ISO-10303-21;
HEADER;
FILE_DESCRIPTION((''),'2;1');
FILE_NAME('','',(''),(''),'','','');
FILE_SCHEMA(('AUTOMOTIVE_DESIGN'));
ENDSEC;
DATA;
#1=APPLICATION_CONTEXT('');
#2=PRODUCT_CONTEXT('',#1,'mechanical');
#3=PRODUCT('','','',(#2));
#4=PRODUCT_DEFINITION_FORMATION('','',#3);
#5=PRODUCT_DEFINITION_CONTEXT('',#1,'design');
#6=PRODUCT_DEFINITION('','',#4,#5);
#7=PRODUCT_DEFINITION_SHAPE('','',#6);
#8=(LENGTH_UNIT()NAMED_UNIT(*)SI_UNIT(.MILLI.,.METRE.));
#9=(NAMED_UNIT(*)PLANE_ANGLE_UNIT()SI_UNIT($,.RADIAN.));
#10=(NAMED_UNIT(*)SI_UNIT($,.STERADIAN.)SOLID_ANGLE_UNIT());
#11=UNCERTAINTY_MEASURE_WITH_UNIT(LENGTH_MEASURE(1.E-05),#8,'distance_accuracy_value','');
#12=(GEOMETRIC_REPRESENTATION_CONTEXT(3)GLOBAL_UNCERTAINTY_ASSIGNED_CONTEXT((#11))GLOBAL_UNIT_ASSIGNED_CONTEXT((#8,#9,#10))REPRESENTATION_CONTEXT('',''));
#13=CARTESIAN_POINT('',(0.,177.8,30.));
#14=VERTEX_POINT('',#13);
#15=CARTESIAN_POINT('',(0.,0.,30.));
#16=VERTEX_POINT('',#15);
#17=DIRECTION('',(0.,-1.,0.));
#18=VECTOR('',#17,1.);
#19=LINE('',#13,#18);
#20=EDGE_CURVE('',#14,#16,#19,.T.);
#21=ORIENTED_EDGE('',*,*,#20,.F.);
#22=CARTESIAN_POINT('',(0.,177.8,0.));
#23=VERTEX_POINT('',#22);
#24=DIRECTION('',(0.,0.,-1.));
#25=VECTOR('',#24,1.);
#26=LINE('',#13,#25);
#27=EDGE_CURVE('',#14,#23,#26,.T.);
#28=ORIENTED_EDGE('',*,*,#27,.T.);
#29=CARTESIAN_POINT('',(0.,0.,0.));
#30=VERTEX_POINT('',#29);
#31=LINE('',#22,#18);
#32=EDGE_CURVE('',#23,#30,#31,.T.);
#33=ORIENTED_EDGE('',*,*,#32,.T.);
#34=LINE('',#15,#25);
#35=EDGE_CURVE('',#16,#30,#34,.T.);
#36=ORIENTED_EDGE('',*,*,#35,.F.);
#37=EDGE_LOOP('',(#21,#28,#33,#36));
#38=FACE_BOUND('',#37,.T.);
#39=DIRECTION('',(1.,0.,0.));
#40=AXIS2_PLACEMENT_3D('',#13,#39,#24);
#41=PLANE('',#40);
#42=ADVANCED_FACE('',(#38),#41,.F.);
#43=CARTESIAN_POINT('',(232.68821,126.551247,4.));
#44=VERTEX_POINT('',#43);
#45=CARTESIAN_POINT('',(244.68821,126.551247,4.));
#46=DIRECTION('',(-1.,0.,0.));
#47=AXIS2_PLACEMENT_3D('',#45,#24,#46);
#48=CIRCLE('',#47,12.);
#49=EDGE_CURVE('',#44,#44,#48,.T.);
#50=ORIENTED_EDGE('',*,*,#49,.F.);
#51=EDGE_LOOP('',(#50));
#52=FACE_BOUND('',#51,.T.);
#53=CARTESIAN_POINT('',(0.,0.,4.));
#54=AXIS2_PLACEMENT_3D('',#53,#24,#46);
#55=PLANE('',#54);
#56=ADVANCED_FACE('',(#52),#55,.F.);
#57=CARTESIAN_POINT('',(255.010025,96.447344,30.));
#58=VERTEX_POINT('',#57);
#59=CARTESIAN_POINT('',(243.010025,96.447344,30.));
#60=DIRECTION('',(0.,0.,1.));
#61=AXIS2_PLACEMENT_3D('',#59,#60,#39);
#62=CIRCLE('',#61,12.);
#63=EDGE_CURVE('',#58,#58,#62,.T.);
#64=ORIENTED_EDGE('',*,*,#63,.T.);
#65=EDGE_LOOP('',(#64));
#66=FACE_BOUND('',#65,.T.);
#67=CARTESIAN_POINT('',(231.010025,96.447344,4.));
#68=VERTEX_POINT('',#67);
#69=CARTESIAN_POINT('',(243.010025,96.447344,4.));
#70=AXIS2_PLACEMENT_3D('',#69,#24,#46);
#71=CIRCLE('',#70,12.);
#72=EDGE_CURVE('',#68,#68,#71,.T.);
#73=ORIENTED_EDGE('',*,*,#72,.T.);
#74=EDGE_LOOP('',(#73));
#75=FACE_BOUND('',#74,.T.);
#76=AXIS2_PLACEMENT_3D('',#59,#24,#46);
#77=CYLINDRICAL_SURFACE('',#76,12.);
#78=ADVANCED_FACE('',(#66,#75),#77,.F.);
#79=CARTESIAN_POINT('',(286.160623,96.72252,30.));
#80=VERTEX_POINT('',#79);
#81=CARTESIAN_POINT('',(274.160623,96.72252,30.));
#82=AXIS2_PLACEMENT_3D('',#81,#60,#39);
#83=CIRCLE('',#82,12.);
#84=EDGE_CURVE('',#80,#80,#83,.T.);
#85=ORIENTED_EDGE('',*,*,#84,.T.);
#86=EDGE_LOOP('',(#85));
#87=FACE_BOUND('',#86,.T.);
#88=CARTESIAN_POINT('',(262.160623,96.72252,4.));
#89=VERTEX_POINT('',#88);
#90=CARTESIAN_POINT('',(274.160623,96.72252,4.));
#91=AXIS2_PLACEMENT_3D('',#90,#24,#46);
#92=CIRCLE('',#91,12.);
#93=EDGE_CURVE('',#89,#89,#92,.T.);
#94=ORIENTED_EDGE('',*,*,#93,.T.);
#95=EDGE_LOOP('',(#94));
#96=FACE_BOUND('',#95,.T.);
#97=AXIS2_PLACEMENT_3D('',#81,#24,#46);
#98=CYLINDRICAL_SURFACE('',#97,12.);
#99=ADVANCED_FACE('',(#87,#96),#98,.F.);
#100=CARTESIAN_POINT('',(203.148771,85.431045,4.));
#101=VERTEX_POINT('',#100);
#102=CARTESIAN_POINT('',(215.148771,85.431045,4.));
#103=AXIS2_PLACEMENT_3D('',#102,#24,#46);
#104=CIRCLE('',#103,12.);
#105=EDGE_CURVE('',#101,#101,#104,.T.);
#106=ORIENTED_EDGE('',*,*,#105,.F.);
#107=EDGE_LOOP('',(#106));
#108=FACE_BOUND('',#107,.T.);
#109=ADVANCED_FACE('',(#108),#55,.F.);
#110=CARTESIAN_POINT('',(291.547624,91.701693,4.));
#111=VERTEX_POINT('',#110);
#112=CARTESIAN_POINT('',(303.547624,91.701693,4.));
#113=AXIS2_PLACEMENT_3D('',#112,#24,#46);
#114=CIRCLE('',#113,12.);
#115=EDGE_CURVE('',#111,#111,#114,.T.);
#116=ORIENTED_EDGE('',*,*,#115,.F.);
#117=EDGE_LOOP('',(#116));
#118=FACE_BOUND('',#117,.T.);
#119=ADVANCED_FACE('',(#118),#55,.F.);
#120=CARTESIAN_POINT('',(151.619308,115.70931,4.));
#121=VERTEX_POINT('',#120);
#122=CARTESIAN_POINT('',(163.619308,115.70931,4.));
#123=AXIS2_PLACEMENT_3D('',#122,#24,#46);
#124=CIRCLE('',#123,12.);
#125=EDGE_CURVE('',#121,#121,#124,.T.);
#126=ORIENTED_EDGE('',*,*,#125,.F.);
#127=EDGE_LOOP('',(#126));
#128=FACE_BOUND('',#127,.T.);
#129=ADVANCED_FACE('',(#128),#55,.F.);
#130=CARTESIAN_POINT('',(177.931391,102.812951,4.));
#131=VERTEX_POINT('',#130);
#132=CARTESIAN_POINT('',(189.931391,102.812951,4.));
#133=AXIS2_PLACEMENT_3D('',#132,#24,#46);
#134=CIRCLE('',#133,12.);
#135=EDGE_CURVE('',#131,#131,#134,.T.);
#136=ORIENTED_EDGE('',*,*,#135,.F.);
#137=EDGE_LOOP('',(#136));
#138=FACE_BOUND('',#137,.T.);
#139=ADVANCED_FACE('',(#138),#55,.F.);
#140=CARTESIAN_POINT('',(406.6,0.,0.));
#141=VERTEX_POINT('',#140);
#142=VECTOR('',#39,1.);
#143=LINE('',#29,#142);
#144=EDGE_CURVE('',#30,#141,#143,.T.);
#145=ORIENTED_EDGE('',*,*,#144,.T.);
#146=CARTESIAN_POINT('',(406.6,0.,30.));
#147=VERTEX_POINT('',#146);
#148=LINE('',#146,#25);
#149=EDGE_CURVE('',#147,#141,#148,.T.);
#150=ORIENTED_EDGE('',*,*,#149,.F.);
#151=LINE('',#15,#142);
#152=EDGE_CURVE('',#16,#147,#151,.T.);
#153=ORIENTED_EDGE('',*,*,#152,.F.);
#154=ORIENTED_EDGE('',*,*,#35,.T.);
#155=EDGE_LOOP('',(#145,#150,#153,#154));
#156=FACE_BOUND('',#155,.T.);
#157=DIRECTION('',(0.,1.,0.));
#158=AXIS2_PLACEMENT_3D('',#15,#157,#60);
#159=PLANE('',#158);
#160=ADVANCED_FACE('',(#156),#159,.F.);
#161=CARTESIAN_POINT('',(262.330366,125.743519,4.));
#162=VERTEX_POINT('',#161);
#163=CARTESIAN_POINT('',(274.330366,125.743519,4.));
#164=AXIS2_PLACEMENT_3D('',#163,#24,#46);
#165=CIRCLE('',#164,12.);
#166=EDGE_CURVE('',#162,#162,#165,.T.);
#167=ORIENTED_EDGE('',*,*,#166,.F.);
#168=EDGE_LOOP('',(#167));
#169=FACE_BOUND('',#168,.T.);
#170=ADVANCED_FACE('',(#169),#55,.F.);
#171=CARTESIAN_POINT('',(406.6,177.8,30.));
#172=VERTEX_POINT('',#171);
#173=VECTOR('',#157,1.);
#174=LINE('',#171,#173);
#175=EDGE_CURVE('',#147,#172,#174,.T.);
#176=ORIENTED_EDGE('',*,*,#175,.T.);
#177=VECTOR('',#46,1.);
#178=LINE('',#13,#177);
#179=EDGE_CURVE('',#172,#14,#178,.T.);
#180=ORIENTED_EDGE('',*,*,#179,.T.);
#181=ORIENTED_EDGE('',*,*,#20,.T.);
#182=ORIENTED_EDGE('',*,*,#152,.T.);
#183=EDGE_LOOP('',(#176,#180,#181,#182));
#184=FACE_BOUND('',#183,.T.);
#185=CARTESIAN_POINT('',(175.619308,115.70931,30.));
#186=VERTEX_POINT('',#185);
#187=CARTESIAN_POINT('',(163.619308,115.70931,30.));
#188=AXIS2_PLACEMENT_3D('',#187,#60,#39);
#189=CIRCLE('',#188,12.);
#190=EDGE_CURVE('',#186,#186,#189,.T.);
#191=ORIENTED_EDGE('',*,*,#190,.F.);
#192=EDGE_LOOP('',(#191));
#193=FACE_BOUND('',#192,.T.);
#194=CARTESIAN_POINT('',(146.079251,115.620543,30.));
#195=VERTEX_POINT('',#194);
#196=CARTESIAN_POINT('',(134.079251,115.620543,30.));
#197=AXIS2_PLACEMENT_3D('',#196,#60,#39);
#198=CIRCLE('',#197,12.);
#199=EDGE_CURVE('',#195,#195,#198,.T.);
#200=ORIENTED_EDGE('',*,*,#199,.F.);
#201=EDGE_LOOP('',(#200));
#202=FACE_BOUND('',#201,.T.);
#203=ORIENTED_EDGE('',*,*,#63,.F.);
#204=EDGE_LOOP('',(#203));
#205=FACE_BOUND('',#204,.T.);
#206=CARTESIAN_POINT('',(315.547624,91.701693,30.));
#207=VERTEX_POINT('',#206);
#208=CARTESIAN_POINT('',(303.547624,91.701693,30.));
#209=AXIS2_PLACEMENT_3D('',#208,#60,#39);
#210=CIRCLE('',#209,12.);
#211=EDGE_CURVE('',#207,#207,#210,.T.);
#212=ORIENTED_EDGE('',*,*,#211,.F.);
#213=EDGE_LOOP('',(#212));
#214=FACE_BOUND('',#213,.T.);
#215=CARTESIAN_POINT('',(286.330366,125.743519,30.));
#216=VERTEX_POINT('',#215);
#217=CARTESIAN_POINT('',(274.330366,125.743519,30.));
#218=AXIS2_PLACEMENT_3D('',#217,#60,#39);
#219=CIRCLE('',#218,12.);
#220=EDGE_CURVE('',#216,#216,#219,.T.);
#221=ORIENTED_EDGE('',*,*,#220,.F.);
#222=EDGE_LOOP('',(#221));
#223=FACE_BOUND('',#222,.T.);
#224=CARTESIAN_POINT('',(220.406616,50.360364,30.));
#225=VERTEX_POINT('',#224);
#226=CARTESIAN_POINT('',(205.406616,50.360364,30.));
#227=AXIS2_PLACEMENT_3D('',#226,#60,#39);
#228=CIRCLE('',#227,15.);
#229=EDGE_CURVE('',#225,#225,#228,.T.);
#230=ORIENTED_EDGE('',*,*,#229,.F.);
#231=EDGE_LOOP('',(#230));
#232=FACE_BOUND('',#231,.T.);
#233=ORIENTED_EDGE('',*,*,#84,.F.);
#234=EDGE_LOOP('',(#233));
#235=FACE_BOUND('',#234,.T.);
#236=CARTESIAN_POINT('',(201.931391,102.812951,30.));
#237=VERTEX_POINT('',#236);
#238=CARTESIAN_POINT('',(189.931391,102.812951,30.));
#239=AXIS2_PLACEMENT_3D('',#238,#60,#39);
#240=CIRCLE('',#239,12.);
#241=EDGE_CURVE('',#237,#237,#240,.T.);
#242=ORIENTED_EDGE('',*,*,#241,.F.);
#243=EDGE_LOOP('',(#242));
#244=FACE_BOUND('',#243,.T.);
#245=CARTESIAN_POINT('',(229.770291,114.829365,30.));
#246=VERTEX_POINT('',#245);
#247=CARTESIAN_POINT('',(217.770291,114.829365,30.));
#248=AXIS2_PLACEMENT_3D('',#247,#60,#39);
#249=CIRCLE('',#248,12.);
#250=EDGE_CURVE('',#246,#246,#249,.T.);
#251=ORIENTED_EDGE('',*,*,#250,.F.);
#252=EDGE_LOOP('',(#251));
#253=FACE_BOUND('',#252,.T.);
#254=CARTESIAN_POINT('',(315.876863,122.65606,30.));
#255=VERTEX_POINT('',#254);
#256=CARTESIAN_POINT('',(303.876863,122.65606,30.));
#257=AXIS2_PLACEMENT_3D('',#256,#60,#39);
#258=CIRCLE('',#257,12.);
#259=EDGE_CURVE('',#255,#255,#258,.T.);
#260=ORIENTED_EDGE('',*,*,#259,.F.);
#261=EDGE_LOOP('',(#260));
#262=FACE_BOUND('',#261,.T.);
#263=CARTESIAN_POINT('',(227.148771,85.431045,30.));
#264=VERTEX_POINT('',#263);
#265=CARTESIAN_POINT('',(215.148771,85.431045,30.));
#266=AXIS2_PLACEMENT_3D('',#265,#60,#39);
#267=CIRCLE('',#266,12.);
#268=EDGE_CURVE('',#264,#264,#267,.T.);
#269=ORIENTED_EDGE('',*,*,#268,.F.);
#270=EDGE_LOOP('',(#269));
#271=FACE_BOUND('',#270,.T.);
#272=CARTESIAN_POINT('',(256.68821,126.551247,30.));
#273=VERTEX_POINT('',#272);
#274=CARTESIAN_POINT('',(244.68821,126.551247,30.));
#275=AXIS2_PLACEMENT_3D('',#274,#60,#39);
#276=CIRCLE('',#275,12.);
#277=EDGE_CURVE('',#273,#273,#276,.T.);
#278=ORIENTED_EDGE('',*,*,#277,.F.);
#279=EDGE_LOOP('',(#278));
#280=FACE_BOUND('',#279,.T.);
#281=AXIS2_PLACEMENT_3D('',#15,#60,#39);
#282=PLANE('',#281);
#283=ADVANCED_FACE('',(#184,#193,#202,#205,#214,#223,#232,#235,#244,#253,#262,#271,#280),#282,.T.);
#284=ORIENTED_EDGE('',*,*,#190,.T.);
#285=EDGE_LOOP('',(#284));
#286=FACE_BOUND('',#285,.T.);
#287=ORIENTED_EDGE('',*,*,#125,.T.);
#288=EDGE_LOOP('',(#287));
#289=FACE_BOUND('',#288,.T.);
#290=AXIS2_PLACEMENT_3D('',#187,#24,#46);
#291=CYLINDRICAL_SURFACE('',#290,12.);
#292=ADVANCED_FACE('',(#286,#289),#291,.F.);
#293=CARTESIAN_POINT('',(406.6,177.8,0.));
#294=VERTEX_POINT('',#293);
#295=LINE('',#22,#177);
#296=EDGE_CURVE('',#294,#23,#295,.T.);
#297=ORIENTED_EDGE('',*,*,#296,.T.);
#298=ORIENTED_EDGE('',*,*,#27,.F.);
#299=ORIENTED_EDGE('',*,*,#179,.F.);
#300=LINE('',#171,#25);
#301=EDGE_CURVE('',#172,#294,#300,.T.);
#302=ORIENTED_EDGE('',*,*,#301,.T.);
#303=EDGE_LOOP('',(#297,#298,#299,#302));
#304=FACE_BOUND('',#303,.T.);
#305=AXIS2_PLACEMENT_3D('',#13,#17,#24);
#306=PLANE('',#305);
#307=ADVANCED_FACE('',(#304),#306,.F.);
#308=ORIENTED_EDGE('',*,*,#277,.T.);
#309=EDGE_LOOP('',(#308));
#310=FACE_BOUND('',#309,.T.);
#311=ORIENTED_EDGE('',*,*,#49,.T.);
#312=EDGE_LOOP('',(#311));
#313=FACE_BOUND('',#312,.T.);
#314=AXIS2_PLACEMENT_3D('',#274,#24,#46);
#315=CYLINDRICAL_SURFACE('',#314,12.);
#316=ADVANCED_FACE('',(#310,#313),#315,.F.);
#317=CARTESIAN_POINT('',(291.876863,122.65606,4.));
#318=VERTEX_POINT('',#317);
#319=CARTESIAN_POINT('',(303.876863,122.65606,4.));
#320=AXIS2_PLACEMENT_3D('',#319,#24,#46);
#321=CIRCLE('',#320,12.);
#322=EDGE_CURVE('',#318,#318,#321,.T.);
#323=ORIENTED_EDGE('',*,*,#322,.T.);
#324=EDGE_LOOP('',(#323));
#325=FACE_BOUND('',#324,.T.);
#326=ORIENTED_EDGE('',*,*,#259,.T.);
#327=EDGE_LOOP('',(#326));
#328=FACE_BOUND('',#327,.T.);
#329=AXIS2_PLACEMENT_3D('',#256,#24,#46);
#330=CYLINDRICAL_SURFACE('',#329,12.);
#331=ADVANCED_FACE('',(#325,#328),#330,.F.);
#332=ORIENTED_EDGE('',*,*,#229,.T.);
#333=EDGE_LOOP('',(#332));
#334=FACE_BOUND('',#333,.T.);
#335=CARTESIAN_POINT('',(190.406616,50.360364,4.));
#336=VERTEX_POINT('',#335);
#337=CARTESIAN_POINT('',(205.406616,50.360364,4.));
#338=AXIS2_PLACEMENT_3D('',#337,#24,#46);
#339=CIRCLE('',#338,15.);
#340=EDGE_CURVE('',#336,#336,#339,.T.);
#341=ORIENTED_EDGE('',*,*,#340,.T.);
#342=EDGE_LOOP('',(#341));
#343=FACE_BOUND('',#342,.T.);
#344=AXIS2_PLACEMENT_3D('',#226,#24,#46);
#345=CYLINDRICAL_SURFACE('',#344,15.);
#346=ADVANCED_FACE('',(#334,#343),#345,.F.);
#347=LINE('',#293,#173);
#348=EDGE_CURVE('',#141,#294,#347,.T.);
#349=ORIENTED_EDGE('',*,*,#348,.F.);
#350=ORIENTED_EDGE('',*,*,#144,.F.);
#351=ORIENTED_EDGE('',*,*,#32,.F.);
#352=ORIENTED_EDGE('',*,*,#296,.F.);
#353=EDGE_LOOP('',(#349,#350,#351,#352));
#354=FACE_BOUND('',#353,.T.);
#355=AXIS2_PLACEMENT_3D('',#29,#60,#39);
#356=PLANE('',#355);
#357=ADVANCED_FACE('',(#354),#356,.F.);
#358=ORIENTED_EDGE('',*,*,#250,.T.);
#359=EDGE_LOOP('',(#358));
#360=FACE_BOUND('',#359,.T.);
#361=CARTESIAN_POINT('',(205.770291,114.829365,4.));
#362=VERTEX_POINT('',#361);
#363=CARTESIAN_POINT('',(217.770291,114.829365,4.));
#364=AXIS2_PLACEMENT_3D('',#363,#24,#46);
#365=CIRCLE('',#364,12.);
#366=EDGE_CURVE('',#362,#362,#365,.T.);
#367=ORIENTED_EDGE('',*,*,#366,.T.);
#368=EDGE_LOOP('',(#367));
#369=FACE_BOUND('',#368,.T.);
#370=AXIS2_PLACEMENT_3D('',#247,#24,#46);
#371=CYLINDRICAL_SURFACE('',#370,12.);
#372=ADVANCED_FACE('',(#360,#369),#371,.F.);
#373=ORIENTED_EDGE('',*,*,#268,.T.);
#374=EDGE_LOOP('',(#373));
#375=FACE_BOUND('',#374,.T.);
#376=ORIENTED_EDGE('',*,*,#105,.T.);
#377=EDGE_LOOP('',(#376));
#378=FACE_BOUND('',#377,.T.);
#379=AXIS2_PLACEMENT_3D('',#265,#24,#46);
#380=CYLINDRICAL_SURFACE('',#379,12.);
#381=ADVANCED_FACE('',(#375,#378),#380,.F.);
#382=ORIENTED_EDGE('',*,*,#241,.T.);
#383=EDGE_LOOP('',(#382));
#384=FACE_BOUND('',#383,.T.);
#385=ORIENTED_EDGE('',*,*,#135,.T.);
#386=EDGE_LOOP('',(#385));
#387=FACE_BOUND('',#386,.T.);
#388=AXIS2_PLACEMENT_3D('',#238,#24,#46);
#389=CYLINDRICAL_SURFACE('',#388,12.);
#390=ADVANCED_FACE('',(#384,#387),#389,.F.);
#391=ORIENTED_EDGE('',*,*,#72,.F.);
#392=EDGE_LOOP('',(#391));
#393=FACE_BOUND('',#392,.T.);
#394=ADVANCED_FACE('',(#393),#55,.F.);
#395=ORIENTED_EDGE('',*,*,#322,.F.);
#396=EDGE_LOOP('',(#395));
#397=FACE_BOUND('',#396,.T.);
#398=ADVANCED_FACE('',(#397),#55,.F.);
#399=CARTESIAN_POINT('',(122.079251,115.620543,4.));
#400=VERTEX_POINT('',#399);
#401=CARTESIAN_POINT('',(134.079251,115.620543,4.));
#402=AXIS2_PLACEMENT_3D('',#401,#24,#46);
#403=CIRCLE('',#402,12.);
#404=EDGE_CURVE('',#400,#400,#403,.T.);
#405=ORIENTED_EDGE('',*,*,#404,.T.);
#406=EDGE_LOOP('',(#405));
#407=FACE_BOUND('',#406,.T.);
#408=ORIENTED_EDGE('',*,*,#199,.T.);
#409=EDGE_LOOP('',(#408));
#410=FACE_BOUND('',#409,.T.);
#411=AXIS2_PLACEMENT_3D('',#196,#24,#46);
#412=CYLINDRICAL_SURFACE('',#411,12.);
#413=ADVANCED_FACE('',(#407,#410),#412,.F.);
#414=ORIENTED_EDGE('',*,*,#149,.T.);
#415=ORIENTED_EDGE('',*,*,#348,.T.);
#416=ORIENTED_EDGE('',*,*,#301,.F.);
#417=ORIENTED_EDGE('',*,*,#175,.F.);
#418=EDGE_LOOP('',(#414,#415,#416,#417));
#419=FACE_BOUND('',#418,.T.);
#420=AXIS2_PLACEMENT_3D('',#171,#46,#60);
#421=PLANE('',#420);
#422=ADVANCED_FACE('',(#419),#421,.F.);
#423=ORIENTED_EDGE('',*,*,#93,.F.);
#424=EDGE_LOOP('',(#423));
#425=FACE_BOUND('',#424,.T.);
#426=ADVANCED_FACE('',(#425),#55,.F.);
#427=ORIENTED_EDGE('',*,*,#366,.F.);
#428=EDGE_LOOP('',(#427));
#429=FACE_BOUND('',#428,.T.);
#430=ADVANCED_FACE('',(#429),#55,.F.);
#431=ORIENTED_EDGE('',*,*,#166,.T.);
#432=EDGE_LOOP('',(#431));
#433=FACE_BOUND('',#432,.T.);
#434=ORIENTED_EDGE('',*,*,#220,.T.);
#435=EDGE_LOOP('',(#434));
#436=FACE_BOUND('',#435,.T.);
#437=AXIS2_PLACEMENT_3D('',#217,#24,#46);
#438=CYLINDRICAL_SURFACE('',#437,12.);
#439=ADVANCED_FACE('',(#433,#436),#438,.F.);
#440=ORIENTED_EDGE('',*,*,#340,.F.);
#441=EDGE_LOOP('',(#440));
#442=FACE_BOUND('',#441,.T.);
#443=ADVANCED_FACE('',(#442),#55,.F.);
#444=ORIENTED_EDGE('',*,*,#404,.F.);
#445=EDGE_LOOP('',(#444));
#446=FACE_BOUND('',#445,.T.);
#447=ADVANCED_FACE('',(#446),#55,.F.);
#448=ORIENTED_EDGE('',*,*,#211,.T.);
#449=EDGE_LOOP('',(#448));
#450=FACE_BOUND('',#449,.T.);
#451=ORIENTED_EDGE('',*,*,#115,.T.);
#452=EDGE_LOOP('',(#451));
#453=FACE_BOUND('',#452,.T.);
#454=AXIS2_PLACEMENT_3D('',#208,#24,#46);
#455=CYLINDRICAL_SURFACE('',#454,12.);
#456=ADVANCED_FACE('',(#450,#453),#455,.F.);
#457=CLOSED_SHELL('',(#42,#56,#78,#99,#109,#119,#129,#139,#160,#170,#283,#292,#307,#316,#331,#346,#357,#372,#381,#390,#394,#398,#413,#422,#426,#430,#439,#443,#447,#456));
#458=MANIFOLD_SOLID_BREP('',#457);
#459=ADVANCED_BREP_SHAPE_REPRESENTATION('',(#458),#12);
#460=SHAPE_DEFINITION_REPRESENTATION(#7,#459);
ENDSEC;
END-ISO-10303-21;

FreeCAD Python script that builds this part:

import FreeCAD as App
import Part
import Sketcher


def add_polygon(sketch, points):
    """Adds a closed chain of lines whose ends are joined by coincident constraints."""
    first, n = sketch.GeometryCount, len(points)
    for a, b in zip(points, points[1:] + points[:1]):
        sketch.addGeometry(Part.LineSegment(App.Vector(*a, 0), App.Vector(*b, 0)), False)
    for i in range(n):
        sketch.addConstraint(Sketcher.Constraint("Coincident", first + i, 2, first + (i + 1) % n, 1))

doc = App.newDocument("Part")
body = doc.addObject("PartDesign::Body", "Body")

sketch1 = doc.addObject("Sketcher::SketchObject", "Sketch")
body.addObject(sketch1)
sketch1.AttachmentSupport = (doc.XY_Plane, [""])
sketch1.MapMode = "FlatFace"
add_polygon(sketch1, [(0, 177.8), (0, 0), (406.6, 0), (406.6, 177.8)])
sketch1.addGeometry(Part.Circle(App.Vector(205.406616, 50.360364, 0), App.Vector(0, 0, 1), 15), False)
sketch1.addGeometry(Part.Circle(App.Vector(215.148771, 85.431045, 0), App.Vector(0, 0, 1), 12), False)
sketch1.addGeometry(Part.Circle(App.Vector(189.931391, 102.812951, 0), App.Vector(0, 0, 1), 12), False)
sketch1.addGeometry(Part.Circle(App.Vector(134.079251, 115.620543, 0), App.Vector(0, 0, 1), 12), False)
sketch1.addGeometry(Part.Circle(App.Vector(163.619308, 115.70931, 0), App.Vector(0, 0, 1), 12), False)
sketch1.addGeometry(Part.Circle(App.Vector(217.770291, 114.829365, 0), App.Vector(0, 0, 1), 12), False)
sketch1.addGeometry(Part.Circle(App.Vector(243.010025, 96.447344, 0), App.Vector(0, 0, 1), 12), False)
sketch1.addGeometry(Part.Circle(App.Vector(274.160623, 96.72252, 0), App.Vector(0, 0, 1), 12), False)
sketch1.addGeometry(Part.Circle(App.Vector(303.547624, 91.701693, 0), App.Vector(0, 0, 1), 12), False)
sketch1.addGeometry(Part.Circle(App.Vector(244.68821, 126.551247, 0), App.Vector(0, 0, 1), 12), False)
sketch1.addGeometry(Part.Circle(App.Vector(303.876863, 122.65606, 0), App.Vector(0, 0, 1), 12), False)
sketch1.addGeometry(Part.Circle(App.Vector(274.330366, 125.743519, 0), App.Vector(0, 0, 1), 12), False)
sketch1.addConstraint([
    Sketcher.Constraint("Vertical", 0),
    Sketcher.Constraint("Horizontal", 1),
    Sketcher.Constraint("Vertical", 2),
    Sketcher.Constraint("Horizontal", 3),
    Sketcher.Constraint("Coincident", 0, 2, -1, 1),
    Sketcher.Constraint("Equal", 5, 6),
    Sketcher.Constraint("Equal", 6, 7),
    Sketcher.Constraint("Equal", 7, 8),
    Sketcher.Constraint("Equal", 8, 9),
    Sketcher.Constraint("Equal", 9, 10),
    Sketcher.Constraint("Equal", 10, 11),
    Sketcher.Constraint("Equal", 11, 12),
    Sketcher.Constraint("Equal", 12, 13),
    Sketcher.Constraint("Equal", 13, 14),
    Sketcher.Constraint("Equal", 14, 15),
    Sketcher.Constraint("Diameter", 4, 30.0),
    Sketcher.Constraint("Diameter", 5, 24.0),
    Sketcher.Constraint("DistanceX", 1, 1, 1, 2, 406.6),
    Sketcher.Constraint("DistanceY", 0, 2, 0, 1, 177.8),
    Sketcher.Constraint("DistanceY", 4, 3, 9, 3, 64.469),
    Sketcher.Constraint("DistanceX", 11, 3, 12, 3, 29.387001),
    Sketcher.Constraint("DistanceY", 11, 3, 15, 3, 29.020999),
    Sketcher.Constraint("DistanceY", 5, 3, 7, 3, 30.189498),
    Sketcher.Constraint("DistanceX", 6, 3, 9, 3, 27.838899),
    Sketcher.Constraint("DistanceY", 5, 3, 10, 3, 11.016299),
    Sketcher.Constraint("DistanceX", 10, 3, 12, 3, 60.537599),
    Sketcher.Constraint("DistanceX", -1, 1, 5, 3, 215.148771),
    Sketcher.Constraint("DistanceX", -1, 1, 6, 3, 189.931391),
    Sketcher.Constraint("DistanceY", -1, 1, 6, 3, 102.812951),
    Sketcher.Constraint("DistanceX", -1, 1, 7, 3, 134.079251),
    Sketcher.Constraint("DistanceX", -1, 1, 8, 3, 163.619308),
    Sketcher.Constraint("DistanceY", -1, 1, 8, 3, 115.70931),
    Sketcher.Constraint("DistanceY", -1, 1, 11, 3, 96.72252),
    Sketcher.Constraint("DistanceX", -1, 1, 13, 3, 244.68821),
    Sketcher.Constraint("DistanceY", -1, 1, 14, 3, 122.65606),
    Sketcher.Constraint("DistanceY", 4, 3, 5, 3, 35.070681),
    Sketcher.Constraint("DistanceX", 4, 3, 10, 3, 37.60341),
    Sketcher.Constraint("DistanceX", 6, 3, 11, 3, 84.229232),
    Sketcher.Constraint("DistanceY", 12, 3, 10, 3, 4.745651),
    Sketcher.Constraint("DistanceX", 12, 3, 14, 3, 0.329239),
    Sketcher.Constraint("DistanceY", 15, 3, 13, 3, 0.807728),
    Sketcher.Constraint("DistanceX", 10, 3, 15, 3, 31.32034),
    Sketcher.Constraint("DistanceY", -1, 1, 4, 3, 50.360364),
])
pad1 = doc.addObject("PartDesign::Pad", "Pad")
body.addObject(pad1)
pad1.Profile = sketch1
pad1.Length = 30

sketch2 = doc.addObject("Sketcher::SketchObject", "Sketch001")
body.addObject(sketch2)
sketch2.AttachmentSupport = (doc.XY_Plane, [""])
sketch2.MapMode = "FlatFace"
add_polygon(sketch2, [(406.6, 177.8), (406.6, 0), (0, 0), (0, 177.8)])
sketch2.addConstraint([
    Sketcher.Constraint("Vertical", 0),
    Sketcher.Constraint("Horizontal", 1),
    Sketcher.Constraint("Vertical", 2),
    Sketcher.Constraint("Horizontal", 3),
    Sketcher.Constraint("Coincident", 1, 2, -1, 1),
    Sketcher.Constraint("DistanceX", 1, 2, 1, 1, 406.6),
    Sketcher.Constraint("DistanceY", 0, 2, 0, 1, 177.8),
])
pad2 = doc.addObject("PartDesign::Pad", "Pad001")
body.addObject(pad2)
pad2.Profile = sketch2
pad2.Length = 4

doc.recompute()
